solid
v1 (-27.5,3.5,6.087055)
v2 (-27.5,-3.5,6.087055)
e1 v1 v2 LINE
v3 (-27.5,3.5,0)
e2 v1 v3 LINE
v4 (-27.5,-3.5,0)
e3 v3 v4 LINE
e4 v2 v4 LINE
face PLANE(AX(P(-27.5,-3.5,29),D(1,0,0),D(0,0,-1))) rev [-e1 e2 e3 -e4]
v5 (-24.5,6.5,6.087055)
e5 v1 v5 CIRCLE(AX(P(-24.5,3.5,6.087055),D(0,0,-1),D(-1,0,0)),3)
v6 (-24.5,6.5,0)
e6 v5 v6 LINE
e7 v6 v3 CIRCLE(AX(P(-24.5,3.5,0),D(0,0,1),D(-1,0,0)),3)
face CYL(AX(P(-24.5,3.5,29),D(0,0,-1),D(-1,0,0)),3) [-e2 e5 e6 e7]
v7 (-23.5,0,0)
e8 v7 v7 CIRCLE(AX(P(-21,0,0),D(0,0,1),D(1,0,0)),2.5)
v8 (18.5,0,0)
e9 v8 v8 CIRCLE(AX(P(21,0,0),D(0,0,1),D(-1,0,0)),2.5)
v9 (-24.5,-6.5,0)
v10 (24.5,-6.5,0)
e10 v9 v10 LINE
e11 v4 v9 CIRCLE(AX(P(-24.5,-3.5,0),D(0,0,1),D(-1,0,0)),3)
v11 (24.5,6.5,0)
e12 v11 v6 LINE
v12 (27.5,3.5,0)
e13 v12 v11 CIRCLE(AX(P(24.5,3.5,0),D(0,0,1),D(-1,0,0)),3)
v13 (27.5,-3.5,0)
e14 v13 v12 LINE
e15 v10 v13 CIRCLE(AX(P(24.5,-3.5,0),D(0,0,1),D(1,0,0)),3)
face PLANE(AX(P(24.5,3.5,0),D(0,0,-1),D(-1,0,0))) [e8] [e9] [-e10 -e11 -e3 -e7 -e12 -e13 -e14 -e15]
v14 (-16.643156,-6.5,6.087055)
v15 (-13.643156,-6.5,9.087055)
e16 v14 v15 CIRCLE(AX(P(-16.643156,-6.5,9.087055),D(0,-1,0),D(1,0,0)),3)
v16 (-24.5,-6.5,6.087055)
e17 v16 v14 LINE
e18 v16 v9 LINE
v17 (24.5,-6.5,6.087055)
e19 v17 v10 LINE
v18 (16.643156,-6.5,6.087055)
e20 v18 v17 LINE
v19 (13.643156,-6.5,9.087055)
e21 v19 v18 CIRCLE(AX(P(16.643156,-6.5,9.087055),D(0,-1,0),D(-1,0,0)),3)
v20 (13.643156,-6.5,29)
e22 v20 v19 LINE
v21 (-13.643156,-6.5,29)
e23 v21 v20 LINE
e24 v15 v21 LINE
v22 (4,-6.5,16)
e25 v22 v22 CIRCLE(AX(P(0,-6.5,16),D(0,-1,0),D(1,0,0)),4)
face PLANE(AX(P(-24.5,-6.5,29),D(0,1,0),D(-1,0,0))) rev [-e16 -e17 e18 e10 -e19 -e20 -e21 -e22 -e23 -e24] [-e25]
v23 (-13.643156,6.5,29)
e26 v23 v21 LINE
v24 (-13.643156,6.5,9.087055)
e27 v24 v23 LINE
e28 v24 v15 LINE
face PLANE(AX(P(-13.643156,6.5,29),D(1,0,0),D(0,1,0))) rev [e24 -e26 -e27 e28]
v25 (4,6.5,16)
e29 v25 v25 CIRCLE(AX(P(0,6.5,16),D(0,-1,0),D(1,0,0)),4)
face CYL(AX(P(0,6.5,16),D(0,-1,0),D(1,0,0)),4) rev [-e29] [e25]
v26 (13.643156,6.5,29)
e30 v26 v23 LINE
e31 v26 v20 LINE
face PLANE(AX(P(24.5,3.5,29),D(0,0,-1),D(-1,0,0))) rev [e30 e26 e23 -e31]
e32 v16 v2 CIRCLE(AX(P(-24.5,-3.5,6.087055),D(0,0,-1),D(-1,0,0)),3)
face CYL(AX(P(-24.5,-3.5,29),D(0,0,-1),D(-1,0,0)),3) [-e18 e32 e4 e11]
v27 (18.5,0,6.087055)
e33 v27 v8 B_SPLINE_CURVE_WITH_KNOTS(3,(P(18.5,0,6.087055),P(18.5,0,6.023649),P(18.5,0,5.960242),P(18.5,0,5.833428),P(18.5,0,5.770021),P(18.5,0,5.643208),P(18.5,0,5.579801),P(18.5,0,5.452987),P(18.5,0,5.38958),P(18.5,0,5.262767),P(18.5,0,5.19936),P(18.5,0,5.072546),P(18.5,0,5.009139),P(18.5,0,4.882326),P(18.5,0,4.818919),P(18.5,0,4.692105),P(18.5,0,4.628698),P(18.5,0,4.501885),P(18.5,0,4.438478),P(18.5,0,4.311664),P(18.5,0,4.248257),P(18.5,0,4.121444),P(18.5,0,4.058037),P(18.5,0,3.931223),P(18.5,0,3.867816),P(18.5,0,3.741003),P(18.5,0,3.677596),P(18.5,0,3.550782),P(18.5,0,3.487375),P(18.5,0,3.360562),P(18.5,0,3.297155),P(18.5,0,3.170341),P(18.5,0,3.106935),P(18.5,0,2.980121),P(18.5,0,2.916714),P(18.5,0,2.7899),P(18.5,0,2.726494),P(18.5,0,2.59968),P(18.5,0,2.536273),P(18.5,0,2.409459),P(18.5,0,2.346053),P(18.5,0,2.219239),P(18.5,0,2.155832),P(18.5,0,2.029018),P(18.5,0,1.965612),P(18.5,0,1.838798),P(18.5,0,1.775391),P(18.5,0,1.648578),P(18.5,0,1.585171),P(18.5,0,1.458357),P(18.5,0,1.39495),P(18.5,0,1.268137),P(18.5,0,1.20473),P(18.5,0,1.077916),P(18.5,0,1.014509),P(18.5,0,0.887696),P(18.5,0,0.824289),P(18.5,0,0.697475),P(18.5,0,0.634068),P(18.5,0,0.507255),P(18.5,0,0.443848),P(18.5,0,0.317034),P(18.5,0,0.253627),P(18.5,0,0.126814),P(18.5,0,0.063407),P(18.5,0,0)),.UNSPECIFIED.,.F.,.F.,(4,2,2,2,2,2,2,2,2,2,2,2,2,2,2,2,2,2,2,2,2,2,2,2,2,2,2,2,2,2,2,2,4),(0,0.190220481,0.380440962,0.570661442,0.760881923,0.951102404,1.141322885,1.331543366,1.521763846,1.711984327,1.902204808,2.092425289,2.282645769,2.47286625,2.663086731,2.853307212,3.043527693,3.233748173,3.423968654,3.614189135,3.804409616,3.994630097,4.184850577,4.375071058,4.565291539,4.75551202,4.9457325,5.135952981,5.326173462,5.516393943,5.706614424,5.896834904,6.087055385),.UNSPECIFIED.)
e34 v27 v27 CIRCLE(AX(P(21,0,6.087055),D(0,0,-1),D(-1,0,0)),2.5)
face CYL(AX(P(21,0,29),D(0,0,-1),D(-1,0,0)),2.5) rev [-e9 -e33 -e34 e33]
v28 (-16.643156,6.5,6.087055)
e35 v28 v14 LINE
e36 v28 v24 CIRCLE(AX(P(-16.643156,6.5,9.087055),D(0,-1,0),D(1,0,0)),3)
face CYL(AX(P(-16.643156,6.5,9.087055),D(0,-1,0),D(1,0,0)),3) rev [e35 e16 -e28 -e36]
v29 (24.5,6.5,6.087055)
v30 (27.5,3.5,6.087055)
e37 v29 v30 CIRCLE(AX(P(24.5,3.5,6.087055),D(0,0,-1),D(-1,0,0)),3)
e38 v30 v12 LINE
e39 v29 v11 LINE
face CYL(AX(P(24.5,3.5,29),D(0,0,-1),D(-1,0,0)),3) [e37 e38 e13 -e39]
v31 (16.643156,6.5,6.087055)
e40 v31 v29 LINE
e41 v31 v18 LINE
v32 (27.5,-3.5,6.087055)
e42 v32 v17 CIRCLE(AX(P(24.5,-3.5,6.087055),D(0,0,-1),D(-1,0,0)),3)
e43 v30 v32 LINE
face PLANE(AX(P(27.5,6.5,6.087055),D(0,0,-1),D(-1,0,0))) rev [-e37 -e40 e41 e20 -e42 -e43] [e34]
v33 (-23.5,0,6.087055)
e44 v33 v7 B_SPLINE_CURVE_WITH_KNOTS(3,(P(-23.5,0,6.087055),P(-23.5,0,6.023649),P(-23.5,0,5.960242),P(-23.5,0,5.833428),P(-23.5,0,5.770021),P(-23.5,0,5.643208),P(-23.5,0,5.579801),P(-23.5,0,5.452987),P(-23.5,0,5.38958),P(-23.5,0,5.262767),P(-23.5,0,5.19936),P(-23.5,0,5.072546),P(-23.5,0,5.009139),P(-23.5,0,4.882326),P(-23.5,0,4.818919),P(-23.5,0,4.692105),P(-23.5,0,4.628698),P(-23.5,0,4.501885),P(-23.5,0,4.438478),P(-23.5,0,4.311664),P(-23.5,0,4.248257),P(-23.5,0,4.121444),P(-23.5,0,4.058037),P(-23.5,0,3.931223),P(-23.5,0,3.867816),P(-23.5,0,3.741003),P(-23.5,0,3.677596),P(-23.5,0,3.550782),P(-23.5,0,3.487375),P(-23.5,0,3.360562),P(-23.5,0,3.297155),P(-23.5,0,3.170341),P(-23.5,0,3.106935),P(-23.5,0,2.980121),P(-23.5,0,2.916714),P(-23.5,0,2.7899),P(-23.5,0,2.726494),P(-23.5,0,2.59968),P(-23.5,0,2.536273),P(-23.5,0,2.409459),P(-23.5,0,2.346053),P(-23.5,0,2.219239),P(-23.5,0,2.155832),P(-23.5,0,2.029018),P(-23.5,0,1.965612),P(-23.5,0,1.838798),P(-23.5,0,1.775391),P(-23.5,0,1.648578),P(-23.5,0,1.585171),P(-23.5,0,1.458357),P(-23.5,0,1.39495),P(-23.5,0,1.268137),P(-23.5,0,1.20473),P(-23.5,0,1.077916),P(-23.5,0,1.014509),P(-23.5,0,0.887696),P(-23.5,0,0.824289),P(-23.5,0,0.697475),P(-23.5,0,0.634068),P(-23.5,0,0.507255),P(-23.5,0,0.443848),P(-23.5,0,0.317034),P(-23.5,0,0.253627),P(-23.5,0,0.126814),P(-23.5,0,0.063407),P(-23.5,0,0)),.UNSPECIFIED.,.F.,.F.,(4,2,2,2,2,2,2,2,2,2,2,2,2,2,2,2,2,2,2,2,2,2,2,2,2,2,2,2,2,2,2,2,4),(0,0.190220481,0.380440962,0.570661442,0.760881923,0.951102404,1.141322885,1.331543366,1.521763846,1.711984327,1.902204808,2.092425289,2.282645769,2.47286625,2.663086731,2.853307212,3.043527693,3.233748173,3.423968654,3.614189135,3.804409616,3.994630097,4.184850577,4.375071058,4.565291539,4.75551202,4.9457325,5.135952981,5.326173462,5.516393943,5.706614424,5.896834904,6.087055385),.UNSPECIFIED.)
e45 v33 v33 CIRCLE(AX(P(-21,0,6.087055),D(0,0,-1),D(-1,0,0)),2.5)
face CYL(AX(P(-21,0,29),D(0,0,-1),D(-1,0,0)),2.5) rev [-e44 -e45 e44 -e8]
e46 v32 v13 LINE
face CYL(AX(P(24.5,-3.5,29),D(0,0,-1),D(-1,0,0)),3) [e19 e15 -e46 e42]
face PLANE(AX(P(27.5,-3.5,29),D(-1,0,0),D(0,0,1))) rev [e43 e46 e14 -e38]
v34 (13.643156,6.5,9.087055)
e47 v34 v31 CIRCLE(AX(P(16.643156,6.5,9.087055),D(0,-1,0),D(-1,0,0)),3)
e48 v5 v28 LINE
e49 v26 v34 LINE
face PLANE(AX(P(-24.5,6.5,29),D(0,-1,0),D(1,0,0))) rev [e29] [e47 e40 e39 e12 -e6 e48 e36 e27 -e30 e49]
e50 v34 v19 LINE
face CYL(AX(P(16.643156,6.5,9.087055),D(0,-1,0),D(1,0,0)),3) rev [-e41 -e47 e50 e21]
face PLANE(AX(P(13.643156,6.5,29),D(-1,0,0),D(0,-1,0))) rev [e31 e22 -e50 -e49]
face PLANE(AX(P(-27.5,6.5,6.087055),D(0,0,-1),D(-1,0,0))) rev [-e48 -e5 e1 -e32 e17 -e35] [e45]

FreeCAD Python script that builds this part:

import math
import FreeCAD as App
import Part
import Sketcher

V = App.Vector

doc = App.newDocument("Part")
body = doc.addObject("PartDesign::Body", "Body")

# Sketch on XY plane
sketch1 = body.newObject("Sketcher::SketchObject", "Sketch")
sketch1.AttachmentSupport = (doc.getObject("XY_Plane"), [""])
sketch1.MapMode = "FlatFace"
sketch1.addGeometry([
    Part.LineSegment(V(-27.5, 3.5, 0), V(-27.5, -3.5, 0)),  # 0
    Part.ArcOfCircle(Part.Circle(V(-24.5, -3.5, 0), V(0, 0, 1), 3), math.radians(180), math.radians(270)),  # 1
    Part.LineSegment(V(-24.5, -6.5, 0), V(24.5, -6.5, 0)),  # 2
    Part.ArcOfCircle(Part.Circle(V(24.5, -3.5, 0), V(0, 0, 1), 3), math.radians(-90), math.radians(0)),  # 3
    Part.LineSegment(V(27.5, -3.5, 0), V(27.5, 3.5, 0)),  # 4
    Part.ArcOfCircle(Part.Circle(V(24.5, 3.5, 0), V(0, 0, 1), 3), math.radians(0), math.radians(90)),  # 5
    Part.LineSegment(V(24.5, 6.5, 0), V(-24.5, 6.5, 0)),  # 6
    Part.ArcOfCircle(Part.Circle(V(-24.5, 3.5, 0), V(0, 0, 1), 3), math.radians(90), math.radians(180)),  # 7
    Part.Circle(V(21, 0, 0), V(0, 0, 1), 2.5),  # 8
    Part.Circle(V(-21, 0, 0), V(0, 0, 1), 2.5),  # 9
], False)
sketch1.addConstraint([
    Sketcher.Constraint("Tangent", 0, 2, 1, 1),
    Sketcher.Constraint("Tangent", 1, 2, 2, 1),
    Sketcher.Constraint("Tangent", 2, 2, 3, 1),
    Sketcher.Constraint("Tangent", 3, 2, 4, 1),
    Sketcher.Constraint("Tangent", 4, 2, 5, 1),
    Sketcher.Constraint("Tangent", 5, 2, 6, 1),
    Sketcher.Constraint("Tangent", 6, 2, 7, 1),
    Sketcher.Constraint("Tangent", 7, 2, 0, 1),
    Sketcher.Constraint("Vertical", 0),
    Sketcher.Constraint("Horizontal", 2),
    Sketcher.Constraint("Vertical", 4),
    Sketcher.Constraint("Horizontal", 6),
    Sketcher.Constraint("Equal", 1, 3),
    Sketcher.Constraint("Equal", 3, 5),
    Sketcher.Constraint("Equal", 5, 7),
    Sketcher.Constraint("Equal", 8, 9),
    Sketcher.Constraint("Symmetric", 1, 3, 5, 3, -1, 1),
    Sketcher.Constraint("Symmetric", 8, 3, 9, 3, -1, 1),
    Sketcher.Constraint("PointOnObject", 8, 3, -1),
    Sketcher.Constraint("Diameter", 8, 5.0),
    Sketcher.Constraint("Radius", 1, 3.0),
    Sketcher.Constraint("DistanceX", 2, 1, 2, 2, 49.0),
    Sketcher.Constraint("DistanceY", 0, 2, 0, 1, 7.0),
    Sketcher.Constraint("DistanceX", -1, 1, 8, 3, 21.0),
])
pad1 = body.newObject("PartDesign::Pad", "Pad")
pad1.Profile = sketch1
pad1.Length = 29

# Sketch on XZ plane
sketch2 = body.newObject("Sketcher::SketchObject", "Sketch001")
sketch2.AttachmentSupport = (doc.getObject("XZ_Plane"), [""])
sketch2.MapMode = "FlatFace"
sketch2.AttachmentOffset = App.Placement(V(0, 0, 6.5), App.Rotation())
sketch2.addGeometry([
    Part.Circle(V(0, 16, 0), V(0, 0, 1), 4),  # 0
    Part.LineSegment(V(-13.6, 29, 0), V(-27.5, 29, 0)),  # 1
    Part.LineSegment(V(-27.5, 29, 0), V(-27.5, 6.1, 0)),  # 2
    Part.LineSegment(V(-27.5, 6.1, 0), V(-16.6, 6.1, 0)),  # 3
    Part.ArcOfCircle(Part.Circle(V(-16.6, 9.1, 0), V(0, 0, 1), 3), math.radians(-90), math.radians(0)),  # 4
    Part.LineSegment(V(-13.6, 9.1, 0), V(-13.6, 29, 0)),  # 5
    Part.LineSegment(V(16.6, 6.1, 0), V(27.5, 6.1, 0)),  # 6
    Part.LineSegment(V(27.5, 6.1, 0), V(27.5, 29, 0)),  # 7
    Part.LineSegment(V(27.5, 29, 0), V(13.6, 29, 0)),  # 8
    Part.LineSegment(V(13.6, 29, 0), V(13.6, 9.1, 0)),  # 9
    Part.ArcOfCircle(Part.Circle(V(16.6, 9.1, 0), V(0, 0, 1), 3), math.radians(180), math.radians(270)),  # 10
], False)
sketch2.addConstraint([
    Sketcher.Constraint("Coincident", 1, 2, 2, 1),
    Sketcher.Constraint("Coincident", 2, 2, 3, 1),
    Sketcher.Constraint("Tangent", 3, 2, 4, 1),
    Sketcher.Constraint("Tangent", 4, 2, 5, 1),
    Sketcher.Constraint("Coincident", 5, 2, 1, 1),
    Sketcher.Constraint("Coincident", 6, 2, 7, 1),
    Sketcher.Constraint("Coincident", 7, 2, 8, 1),
    Sketcher.Constraint("Coincident", 8, 2, 9, 1),
    Sketcher.Constraint("Tangent", 9, 2, 10, 1),
    Sketcher.Constraint("Tangent", 10, 2, 6, 1),
    Sketcher.Constraint("Horizontal", 1),
    Sketcher.Constraint("Vertical", 2),
    Sketcher.Constraint("Horizontal", 3),
    Sketcher.Constraint("Vertical", 5),
    Sketcher.Constraint("Horizontal", 6),
    Sketcher.Constraint("Vertical", 7),
    Sketcher.Constraint("Horizontal", 8),
    Sketcher.Constraint("Vertical", 9),
    Sketcher.Constraint("Equal", 4, 10),
    Sketcher.Constraint("Symmetric", 4, 3, 10, 3, -2),
    Sketcher.Constraint("Symmetric", 1, 2, 7, 2, -2),
    Sketcher.Constraint("PointOnObject", 0, 3, -2),
    Sketcher.Constraint("Diameter", 0, 8.0),
    Sketcher.Constraint("Radius", 4, 3.0),
    Sketcher.Constraint("DistanceY", -1, 1, 0, 3, 16.0),
    Sketcher.Constraint("DistanceY", -1, 1, 1, 2, 29.0),
    Sketcher.Constraint("DistanceX", 1, 2, -1, 1, 27.5),
    Sketcher.Constraint("DistanceX", 1, 2, 1, 1, 13.856844),
    Sketcher.Constraint("DistanceY", 2, 2, 2, 1, 22.912945),
])
pocket1 = body.newObject("PartDesign::Pocket", "Pocket")
pocket1.Profile = sketch2
pocket1.Type = "ThroughAll"

doc.recompute()
